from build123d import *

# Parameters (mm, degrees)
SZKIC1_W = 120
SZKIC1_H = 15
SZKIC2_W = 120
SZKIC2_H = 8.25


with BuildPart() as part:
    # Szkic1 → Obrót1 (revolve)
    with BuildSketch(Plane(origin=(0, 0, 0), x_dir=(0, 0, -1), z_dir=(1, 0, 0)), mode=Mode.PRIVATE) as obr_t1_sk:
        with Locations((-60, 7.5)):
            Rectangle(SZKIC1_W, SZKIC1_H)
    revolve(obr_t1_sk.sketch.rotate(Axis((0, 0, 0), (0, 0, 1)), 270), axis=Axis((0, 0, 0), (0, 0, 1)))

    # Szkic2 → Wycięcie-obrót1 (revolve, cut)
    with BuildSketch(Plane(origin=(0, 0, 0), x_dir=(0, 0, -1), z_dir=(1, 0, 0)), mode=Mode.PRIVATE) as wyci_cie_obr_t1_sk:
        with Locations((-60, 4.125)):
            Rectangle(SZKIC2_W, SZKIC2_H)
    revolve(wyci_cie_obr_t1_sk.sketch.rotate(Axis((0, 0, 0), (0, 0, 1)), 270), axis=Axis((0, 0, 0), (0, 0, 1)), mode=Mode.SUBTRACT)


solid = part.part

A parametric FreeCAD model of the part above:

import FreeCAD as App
import Part
import Sketcher
from FreeCAD import Vector

doc = App.newDocument("Part")
params = doc.addObject("Spreadsheet::Sheet", "Params")
for row, (alias, value) in enumerate([
    ("sketch1_width", "15 mm"),
    ("sketch1_height", "120 mm"),
    ("revolution_angle", "360 deg"),
    ("sketch2_height", "120 mm"),
    ("sketch2_width", "8.25 mm"),
    ("groove_angle", "360 deg"),
], start=1):
    params.set(f"A{row}", alias)
    params.set(f"B{row}", "=" + value)
    params.setAlias(f"B{row}", alias)

body = doc.addObject("PartDesign::Body", "Body")

sketch1 = doc.addObject("Sketcher::SketchObject", "Sketch")
body.addObject(sketch1)
sketch1.AttachmentSupport = (doc.YZ_Plane, [""])
sketch1.MapMode = "FlatFace"
sketch1.addGeometry(Part.LineSegment(Vector(15, 120, 0), Vector(0, 120, 0)), False)
sketch1.addGeometry(Part.LineSegment(Vector(0, 120, 0), Vector(0, 0, 0)), False)
sketch1.addGeometry(Part.LineSegment(Vector(0, 0, 0), Vector(15, 0, 0)), False)
sketch1.addGeometry(Part.LineSegment(Vector(15, 0, 0), Vector(15, 120, 0)), False)
sketch1.addConstraint(Sketcher.Constraint("Coincident", 0, 2, 1, 1))
sketch1.addConstraint(Sketcher.Constraint("Coincident", 1, 2, 2, 1))
sketch1.addConstraint(Sketcher.Constraint("Coincident", 2, 2, 3, 1))
sketch1.addConstraint(Sketcher.Constraint("Coincident", 3, 2, 0, 1))
sketch1.addConstraint(Sketcher.Constraint("Horizontal", 0))
sketch1.addConstraint(Sketcher.Constraint("Vertical", 1))
sketch1.addConstraint(Sketcher.Constraint("Horizontal", 2))
sketch1.addConstraint(Sketcher.Constraint("Vertical", 3))
sketch1.addConstraint(Sketcher.Constraint("Coincident", 1, 2, -1, 1))
sketch1.addConstraint(Sketcher.Constraint("DistanceX", 0, 2, 0, 1, 15.0))
sketch1.addConstraint(Sketcher.Constraint("DistanceY", 1, 2, 1, 1, 120.0))
sketch1.setExpression("Constraints[9]", "Params.sketch1_width")
sketch1.setExpression("Constraints[10]", "Params.sketch1_height")
revolution = doc.addObject("PartDesign::Revolution", "Revolution")
body.addObject(revolution)
revolution.Profile = sketch1
revolution.ReferenceAxis = (sketch1, ["V_Axis"])
revolution.setExpression("Angle", "Params.revolution_angle")

sketch2 = doc.addObject("Sketcher::SketchObject", "Sketch001")
body.addObject(sketch2)
sketch2.AttachmentSupport = (doc.YZ_Plane, [""])
sketch2.MapMode = "FlatFace"
sketch2.addGeometry(Part.LineSegment(Vector(8, 120, 0), Vector(0, 120, 0)), False)
sketch2.addGeometry(Part.LineSegment(Vector(0, 120, 0), Vector(0, 0, 0)), False)
sketch2.addGeometry(Part.LineSegment(Vector(0, 0, 0), Vector(8, 0, 0)), False)
sketch2.addGeometry(Part.LineSegment(Vector(8, 0, 0), Vector(8, 120, 0)), False)
sketch2.addConstraint(Sketcher.Constraint("Coincident", 0, 2, 1, 1))
sketch2.addConstraint(Sketcher.Constraint("Coincident", 1, 2, 2, 1))
sketch2.addConstraint(Sketcher.Constraint("Coincident", 2, 2, 3, 1))
sketch2.addConstraint(Sketcher.Constraint("Coincident", 3, 2, 0, 1))
sketch2.addConstraint(Sketcher.Constraint("Horizontal", 0))
sketch2.addConstraint(Sketcher.Constraint("Vertical", 1))
sketch2.addConstraint(Sketcher.Constraint("Horizontal", 2))
sketch2.addConstraint(Sketcher.Constraint("Vertical", 3))
sketch2.addConstraint(Sketcher.Constraint("Coincident", 1, 2, -1, 1))
sketch2.addConstraint(Sketcher.Constraint("DistanceY", 1, 2, 1, 1, 120.0))
sketch2.addConstraint(Sketcher.Constraint("DistanceX", 0, 2, 0, 1, 8.25))
sketch2.setExpression("Constraints[9]", "Params.sketch2_height")
sketch2.setExpression("Constraints[10]", "Params.sketch2_width")
groove = doc.addObject("PartDesign::Groove", "Groove")
body.addObject(groove)
groove.Profile = sketch2
groove.ReferenceAxis = (sketch2, ["V_Axis"])
groove.setExpression("Angle", "Params.groove_angle")

doc.recompute()
